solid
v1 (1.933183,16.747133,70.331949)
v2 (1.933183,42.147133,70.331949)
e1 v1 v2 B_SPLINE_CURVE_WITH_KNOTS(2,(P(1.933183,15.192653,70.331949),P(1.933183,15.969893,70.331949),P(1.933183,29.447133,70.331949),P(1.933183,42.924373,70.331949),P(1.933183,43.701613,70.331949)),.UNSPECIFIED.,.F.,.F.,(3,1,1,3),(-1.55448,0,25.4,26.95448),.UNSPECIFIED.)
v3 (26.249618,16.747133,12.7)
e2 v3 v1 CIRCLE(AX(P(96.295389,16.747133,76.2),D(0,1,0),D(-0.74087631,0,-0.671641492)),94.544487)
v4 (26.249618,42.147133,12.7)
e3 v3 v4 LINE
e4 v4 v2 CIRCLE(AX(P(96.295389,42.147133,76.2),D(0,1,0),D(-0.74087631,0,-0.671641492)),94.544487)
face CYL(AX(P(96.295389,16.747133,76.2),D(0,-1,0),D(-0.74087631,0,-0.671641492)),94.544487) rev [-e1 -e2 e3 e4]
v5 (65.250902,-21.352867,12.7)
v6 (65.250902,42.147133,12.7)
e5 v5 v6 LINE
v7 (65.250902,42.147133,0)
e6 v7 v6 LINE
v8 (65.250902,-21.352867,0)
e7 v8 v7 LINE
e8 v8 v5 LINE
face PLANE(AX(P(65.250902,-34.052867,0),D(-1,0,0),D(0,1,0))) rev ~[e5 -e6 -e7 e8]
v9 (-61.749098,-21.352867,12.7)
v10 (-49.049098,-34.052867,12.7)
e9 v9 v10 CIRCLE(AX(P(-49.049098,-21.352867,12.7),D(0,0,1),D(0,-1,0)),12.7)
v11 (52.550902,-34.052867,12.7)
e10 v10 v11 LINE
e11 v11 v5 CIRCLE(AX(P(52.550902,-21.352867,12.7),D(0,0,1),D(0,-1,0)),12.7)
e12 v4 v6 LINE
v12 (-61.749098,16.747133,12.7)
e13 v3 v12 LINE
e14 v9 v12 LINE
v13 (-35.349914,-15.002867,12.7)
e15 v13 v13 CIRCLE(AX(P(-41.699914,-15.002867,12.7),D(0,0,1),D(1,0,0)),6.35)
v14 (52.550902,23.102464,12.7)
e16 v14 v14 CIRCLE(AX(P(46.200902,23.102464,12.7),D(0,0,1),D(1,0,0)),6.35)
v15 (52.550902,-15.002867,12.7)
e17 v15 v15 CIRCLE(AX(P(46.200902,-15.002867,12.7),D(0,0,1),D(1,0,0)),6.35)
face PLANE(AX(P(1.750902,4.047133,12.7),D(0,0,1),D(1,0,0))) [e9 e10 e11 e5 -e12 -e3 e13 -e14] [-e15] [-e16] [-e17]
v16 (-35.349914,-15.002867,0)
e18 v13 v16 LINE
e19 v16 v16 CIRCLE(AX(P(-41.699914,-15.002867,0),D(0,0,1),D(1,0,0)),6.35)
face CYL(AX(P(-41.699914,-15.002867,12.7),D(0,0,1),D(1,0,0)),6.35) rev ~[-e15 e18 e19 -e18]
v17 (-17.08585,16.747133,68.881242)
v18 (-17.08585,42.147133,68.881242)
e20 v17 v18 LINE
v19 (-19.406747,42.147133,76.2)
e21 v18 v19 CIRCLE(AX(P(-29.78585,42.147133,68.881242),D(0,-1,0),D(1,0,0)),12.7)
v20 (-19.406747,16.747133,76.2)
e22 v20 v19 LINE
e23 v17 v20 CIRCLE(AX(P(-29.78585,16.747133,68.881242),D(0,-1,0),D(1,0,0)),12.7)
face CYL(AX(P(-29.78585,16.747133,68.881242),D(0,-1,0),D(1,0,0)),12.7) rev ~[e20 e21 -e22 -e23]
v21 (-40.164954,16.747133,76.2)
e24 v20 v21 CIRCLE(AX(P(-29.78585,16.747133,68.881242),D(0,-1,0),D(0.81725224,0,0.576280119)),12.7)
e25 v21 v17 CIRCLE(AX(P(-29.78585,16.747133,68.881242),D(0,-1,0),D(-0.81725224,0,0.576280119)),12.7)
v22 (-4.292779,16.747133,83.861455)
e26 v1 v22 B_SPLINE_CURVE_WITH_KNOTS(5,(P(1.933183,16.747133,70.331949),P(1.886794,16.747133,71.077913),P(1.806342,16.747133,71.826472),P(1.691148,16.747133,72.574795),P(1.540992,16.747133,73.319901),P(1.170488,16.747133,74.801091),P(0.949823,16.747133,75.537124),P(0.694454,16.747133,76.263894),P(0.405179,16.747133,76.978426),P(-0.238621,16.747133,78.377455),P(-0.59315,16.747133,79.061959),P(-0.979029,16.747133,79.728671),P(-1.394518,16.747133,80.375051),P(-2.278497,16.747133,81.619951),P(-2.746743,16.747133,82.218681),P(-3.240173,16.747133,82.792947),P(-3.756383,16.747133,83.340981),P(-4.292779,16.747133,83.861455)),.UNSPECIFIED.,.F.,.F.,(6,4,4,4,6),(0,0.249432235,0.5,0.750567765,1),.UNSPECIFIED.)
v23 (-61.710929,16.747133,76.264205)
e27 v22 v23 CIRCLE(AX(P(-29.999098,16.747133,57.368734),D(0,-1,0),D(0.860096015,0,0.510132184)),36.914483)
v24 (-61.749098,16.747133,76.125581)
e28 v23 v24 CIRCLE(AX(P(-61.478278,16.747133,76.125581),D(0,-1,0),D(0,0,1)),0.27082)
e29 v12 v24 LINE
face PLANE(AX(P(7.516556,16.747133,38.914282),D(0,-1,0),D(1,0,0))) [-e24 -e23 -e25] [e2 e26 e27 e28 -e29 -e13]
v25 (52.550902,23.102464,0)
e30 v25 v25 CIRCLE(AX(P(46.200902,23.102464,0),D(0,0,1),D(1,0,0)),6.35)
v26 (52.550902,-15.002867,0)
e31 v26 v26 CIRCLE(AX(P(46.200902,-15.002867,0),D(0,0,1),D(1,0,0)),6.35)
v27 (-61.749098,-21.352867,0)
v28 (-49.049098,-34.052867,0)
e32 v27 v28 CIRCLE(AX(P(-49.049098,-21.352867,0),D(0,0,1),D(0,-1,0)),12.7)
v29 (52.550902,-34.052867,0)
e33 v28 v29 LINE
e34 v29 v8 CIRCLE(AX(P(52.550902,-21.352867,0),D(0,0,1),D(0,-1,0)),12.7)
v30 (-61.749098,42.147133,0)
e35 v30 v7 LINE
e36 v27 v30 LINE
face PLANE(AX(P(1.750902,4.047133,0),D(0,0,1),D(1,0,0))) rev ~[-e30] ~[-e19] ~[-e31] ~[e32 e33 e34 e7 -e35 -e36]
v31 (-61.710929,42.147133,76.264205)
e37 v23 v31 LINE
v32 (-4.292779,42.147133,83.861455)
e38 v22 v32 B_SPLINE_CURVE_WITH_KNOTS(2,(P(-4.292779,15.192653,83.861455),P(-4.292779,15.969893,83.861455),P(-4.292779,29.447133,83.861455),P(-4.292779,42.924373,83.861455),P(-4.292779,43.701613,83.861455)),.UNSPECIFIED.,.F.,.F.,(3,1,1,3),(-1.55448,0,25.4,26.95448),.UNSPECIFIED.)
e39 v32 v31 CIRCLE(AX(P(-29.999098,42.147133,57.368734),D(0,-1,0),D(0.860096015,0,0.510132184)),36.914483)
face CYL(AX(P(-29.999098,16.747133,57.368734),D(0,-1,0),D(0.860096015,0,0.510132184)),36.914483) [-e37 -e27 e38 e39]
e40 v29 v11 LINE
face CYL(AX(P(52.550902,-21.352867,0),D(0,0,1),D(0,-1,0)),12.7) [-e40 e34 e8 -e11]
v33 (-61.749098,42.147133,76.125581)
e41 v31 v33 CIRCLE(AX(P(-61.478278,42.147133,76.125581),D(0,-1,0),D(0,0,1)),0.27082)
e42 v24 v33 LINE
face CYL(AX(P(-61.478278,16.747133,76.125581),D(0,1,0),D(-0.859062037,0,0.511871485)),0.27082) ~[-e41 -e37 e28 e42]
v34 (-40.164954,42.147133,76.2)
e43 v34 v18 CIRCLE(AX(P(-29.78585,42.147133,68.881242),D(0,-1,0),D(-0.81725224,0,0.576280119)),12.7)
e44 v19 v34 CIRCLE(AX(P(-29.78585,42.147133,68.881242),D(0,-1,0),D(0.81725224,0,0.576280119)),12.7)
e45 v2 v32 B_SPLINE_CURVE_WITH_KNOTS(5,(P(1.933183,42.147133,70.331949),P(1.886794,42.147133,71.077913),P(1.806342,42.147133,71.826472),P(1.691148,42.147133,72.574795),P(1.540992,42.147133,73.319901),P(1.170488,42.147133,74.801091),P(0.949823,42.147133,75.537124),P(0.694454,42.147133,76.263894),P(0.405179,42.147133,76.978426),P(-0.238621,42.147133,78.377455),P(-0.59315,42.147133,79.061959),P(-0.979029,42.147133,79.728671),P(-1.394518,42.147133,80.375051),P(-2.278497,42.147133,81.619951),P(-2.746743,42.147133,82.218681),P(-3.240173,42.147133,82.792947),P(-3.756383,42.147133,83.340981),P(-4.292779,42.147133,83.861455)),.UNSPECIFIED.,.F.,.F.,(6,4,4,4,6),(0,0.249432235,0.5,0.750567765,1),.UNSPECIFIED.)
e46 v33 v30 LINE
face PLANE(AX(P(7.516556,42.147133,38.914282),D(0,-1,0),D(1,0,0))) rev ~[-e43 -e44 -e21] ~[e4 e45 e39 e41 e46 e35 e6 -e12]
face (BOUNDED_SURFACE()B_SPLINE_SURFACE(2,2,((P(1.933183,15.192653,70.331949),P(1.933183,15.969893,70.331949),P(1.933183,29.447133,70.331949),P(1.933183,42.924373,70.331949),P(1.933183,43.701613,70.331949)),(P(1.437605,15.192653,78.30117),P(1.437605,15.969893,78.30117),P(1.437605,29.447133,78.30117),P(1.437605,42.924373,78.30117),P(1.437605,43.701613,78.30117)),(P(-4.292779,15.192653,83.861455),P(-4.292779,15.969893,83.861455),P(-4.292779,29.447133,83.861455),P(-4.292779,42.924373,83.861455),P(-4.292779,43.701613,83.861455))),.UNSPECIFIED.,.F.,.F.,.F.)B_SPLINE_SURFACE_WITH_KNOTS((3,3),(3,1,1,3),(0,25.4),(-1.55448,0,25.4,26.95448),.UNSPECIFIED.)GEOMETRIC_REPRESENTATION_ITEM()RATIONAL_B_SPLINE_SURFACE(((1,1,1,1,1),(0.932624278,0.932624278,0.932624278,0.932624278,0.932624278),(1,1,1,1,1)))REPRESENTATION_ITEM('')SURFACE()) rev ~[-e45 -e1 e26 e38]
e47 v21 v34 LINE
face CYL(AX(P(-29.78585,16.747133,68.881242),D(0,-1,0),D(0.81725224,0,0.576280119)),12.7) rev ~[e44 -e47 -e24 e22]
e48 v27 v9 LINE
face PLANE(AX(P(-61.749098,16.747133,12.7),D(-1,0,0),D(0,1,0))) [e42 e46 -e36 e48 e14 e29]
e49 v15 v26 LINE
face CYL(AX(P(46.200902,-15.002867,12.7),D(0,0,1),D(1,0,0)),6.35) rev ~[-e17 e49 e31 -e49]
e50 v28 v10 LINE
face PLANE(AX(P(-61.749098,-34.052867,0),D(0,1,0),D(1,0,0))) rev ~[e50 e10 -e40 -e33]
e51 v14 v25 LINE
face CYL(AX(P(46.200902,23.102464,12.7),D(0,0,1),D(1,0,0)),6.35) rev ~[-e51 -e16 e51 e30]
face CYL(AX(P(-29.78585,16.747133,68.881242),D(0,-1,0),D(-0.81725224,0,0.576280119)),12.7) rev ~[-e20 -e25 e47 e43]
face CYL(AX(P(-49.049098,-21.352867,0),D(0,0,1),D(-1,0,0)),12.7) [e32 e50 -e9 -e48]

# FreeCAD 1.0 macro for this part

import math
import FreeCAD as App
import Part
import Sketcher

V = App.Vector
Q = App.Units.Quantity


def edges_at(feature, points):
    """Names of the edges that pass closest to the given points."""
    edges = feature.Shape.Edges
    near = lambda p: min(range(len(edges)), key=lambda i: edges[i].distToShape(Part.Vertex(*p))[0])
    return sorted({f"Edge{near(p) + 1}" for p in points})


def add_polygon(sketch, points):
    """Adds a closed chain of lines whose ends are joined by coincident constraints."""
    first, n = sketch.GeometryCount, len(points)
    for a, b in zip(points, points[1:] + points[:1]):
        sketch.addGeometry(Part.LineSegment(App.Vector(*a, 0), App.Vector(*b, 0)), False)
    for i in range(n):
        sketch.addConstraint(Sketcher.Constraint("Coincident", first + i, 2, first + (i + 1) % n, 1))

doc = App.newDocument("Part")
body = doc.addObject("PartDesign::Body", "Body")

# Sketch on XY plane
sketch1 = body.newObject("Sketcher::SketchObject", "Sketch")
sketch1.AttachmentSupport = (doc.getObject("XY_Plane"), [""])
sketch1.MapMode = "FlatFace"
add_polygon(sketch1, [(-62, 42), (-62, -34), (65, -34), (65, 42)])  # lines 0-3
sketch1.addConstraint([
    Sketcher.Constraint("Vertical", 0),
    Sketcher.Constraint("Horizontal", 1),
    Sketcher.Constraint("Vertical", 2),
    Sketcher.Constraint("Horizontal", 3),
    Sketcher.Constraint("DistanceX", 1, 1, 1, 2, Q("5 in")),
    Sketcher.Constraint("DistanceY", 0, 2, 0, 1, Q("3 in")),
    Sketcher.Constraint("DistanceX", 0, 2, -1, 1, 61.749098),
    Sketcher.Constraint("DistanceY", 0, 2, -1, 1, 34.052867),
])
pad1 = body.newObject("PartDesign::Pad", "Pad")
pad1.Profile = sketch1
pad1.Length = Q("0.5 in")
doc.recompute()

fillet = body.newObject("PartDesign::Fillet", "Fillet")
fillet.Base = (pad1, edges_at(pad1, [(-61.749, -34.053, 6.35)]))
fillet.Radius = Q("0.5 in")
doc.recompute()

fillet2 = body.newObject("PartDesign::Fillet", "Fillet001")
fillet2.Base = (fillet, edges_at(fillet, [(65.251, -34.053, 6.35)]))
fillet2.Radius = Q("0.5 in")

# Sketch on XY plane
sketch2 = body.newObject("Sketcher::SketchObject", "Sketch001")
sketch2.AttachmentSupport = (doc.getObject("XY_Plane"), [""])
sketch2.MapMode = "FlatFace"
sketch2.AttachmentOffset = App.Placement(V(0, 0, 0.5 * 25.4), App.Rotation())
add_polygon(sketch2, [(-62, 42), (-62, 17), (2, 17), (2, 42)])  # lines 0-3
sketch2.addConstraint([
    Sketcher.Constraint("Vertical", 0),
    Sketcher.Constraint("Horizontal", 1),
    Sketcher.Constraint("Vertical", 2),
    Sketcher.Constraint("Horizontal", 3),
    Sketcher.Constraint("DistanceY", 0, 2, 0, 1, Q("1 in")),
    Sketcher.Constraint("DistanceX", 1, 1, 1, 2, Q("2.5 in")),
    Sketcher.Constraint("DistanceX", 0, 2, -1, 1, 61.749098),
    Sketcher.Constraint("DistanceY", -1, 1, 0, 2, 16.747133),
])
pad2 = body.newObject("PartDesign::Pad", "Pad001")
pad2.Profile = sketch2
pad2.Length = Q("2.5 in")

# Sketch on XZ plane
sketch3 = body.newObject("Sketcher::SketchObject", "Sketch002")
sketch3.AttachmentSupport = (doc.getObject("XZ_Plane"), [""])
sketch3.MapMode = "FlatFace"
sketch3.AttachmentOffset = App.Placement(V(0, 0, -16.747133), App.Rotation())
sketch3.addGeometry([
    Part.LineSegment(V(-62, 76, 0), V(2, 76, 0)),
    Part.ArcOfCircle(Part.Circle(V(-30, 57, 0), V(0, 0, 1), 37), math.radians(31), math.radians(149)),
], False)
sketch3.addConstraint([
    Sketcher.Constraint("Coincident", 0, 1, 1, 2),
    Sketcher.Constraint("Coincident", 1, 1, 0, 2),
    Sketcher.Constraint("Horizontal", 0),
    Sketcher.Constraint("DistanceX", 0, 1, 0, 2, Q("2.5 in")),
    Sketcher.Constraint("DistanceY", -1, 1, 0, 1, Q("3 in")),
    Sketcher.Constraint("Radius", 1, 36.914483),
    Sketcher.Constraint("DistanceX", 1, 3, -1, 1, 29.999098),
])
pad3 = body.newObject("PartDesign::Pad", "Pad002")
pad3.Profile = sketch3
pad3.Length = Q("1 in")
pad3.Reversed = True

# Sketch on XZ plane
sketch4 = body.newObject("Sketcher::SketchObject", "Sketch003")
sketch4.AttachmentSupport = (doc.getObject("XZ_Plane"), [""])
sketch4.MapMode = "FlatFace"
sketch4.AttachmentOffset = App.Placement(V(0, 0, -16.747133), App.Rotation())
sketch4.addGeometry([
    Part.ArcOfCircle(Part.Circle(V(96, 76, 0), V(0, 0, 1), 95), math.radians(180), math.radians(222)),
    Part.LineSegment(V(2, 76, 0), V(2, 13, 0)),
    Part.LineSegment(V(2, 13, 0), V(26, 13, 0)),
], False)
sketch4.addConstraint([
    Sketcher.Constraint("Tangent", 0, 1, 1, 1),
    Sketcher.Constraint("Coincident", 1, 2, 2, 1),
    Sketcher.Constraint("Coincident", 2, 2, 0, 2),
    Sketcher.Constraint("Vertical", 1),
    Sketcher.Constraint("Horizontal", 2),
    Sketcher.Constraint("DistanceY", 1, 2, 1, 1, Q("2.5 in")),
    Sketcher.Constraint("DistanceY", -1, 1, 0, 3, Q("3 in")),
    Sketcher.Constraint("Radius", 0, 94.544487),
    Sketcher.Constraint("DistanceX", -1, 1, 0, 1, 1.750902),
])
pad4 = body.newObject("PartDesign::Pad", "Pad003")
pad4.Profile = sketch4
pad4.Length = Q("1 in")
pad4.Reversed = True
doc.recompute()

fillet3 = body.newObject("PartDesign::Fillet", "Fillet002")
fillet3.Base = (pad4, edges_at(pad4, [(1.751, 29.447, 76.2)]))
fillet3.Radius = 20.636463

# Sketch on XZ plane
sketch5 = body.newObject("Sketcher::SketchObject", "Sketch004")
sketch5.AttachmentSupport = (doc.getObject("XZ_Plane"), [""])
sketch5.MapMode = "FlatFace"
sketch5.AttachmentOffset = App.Placement(V(0, 0, -16.747133), App.Rotation())
sketch5.addGeometry([
    Part.ArcOfCircle(Part.Circle(V(-30, 69, 0), V(0, 0, 1), 13), math.radians(145), math.radians(360)),
    Part.ArcOfCircle(Part.Circle(V(-30, 69, 0), V(0, 0, 1), 13), math.radians(0), math.radians(35)),
    Part.LineSegment(V(-19, 76, 0), V(-40, 76, 0)),
], False)
sketch5.addConstraint([
    Sketcher.Constraint("Tangent", 0, 2, 1, 1),
    Sketcher.Constraint("Coincident", 1, 2, 2, 1),
    Sketcher.Constraint("Coincident", 2, 2, 0, 1),
    Sketcher.Constraint("Horizontal", 2),
    Sketcher.Constraint("Equal", 0, 1),
    Sketcher.Constraint("Horizontal", 1, 3, 0, 2),
    Sketcher.Constraint("Radius", 0, Q("0.5 in")),
    Sketcher.Constraint("DistanceY", -1, 1, 1, 2, Q("3 in")),
    Sketcher.Constraint("DistanceX", 2, 2, 2, 1, 20.758207),
    Sketcher.Constraint("DistanceX", 0, 3, -1, 1, 29.78585),
])
pocket1 = body.newObject("PartDesign::Pocket", "Pocket")
pocket1.Profile = sketch5
pocket1.Type = "ThroughAll"

# Sketch on XZ plane
sketch6 = body.newObject("Sketcher::SketchObject", "Sketch005")
sketch6.AttachmentSupport = (doc.getObject("XZ_Plane"), [""])
sketch6.MapMode = "FlatFace"
sketch6.AttachmentOffset = App.Placement(V(0, 0, -16.747133), App.Rotation())
sketch6.addGeometry([
    Part.LineSegment(V(-40, 76, 0), V(-19, 76, 0)),
    Part.ArcOfCircle(Part.Circle(V(-30, 69, 0), V(0, 0, 1), 13), math.radians(35), math.radians(145)),
], False)
sketch6.addConstraint([
    Sketcher.Constraint("Coincident", 0, 1, 1, 2),
    Sketcher.Constraint("Coincident", 1, 1, 0, 2),
    Sketcher.Constraint("Horizontal", 0),
    Sketcher.Constraint("Radius", 1, Q("0.5 in")),
    Sketcher.Constraint("DistanceY", -1, 1, 0, 1, Q("3 in")),
    Sketcher.Constraint("DistanceX", 0, 1, 0, 2, 20.758207),
    Sketcher.Constraint("DistanceX", 1, 3, -1, 1, 29.78585),
])
pocket2 = body.newObject("PartDesign::Pocket", "Pocket001")
pocket2.Profile = sketch6
pocket2.Type = "ThroughAll"
doc.recompute()

fillet4 = body.newObject("PartDesign::Fillet", "Fillet003")
fillet4.Base = (pocket2, edges_at(pocket2, [(-61.749, 29.447, 76.2)]))
fillet4.Radius = 0.27082

# Sketch on XY plane
sketch7 = body.newObject("Sketcher::SketchObject", "Sketch006")
sketch7.AttachmentSupport = (doc.getObject("XY_Plane"), [""])
sketch7.MapMode = "FlatFace"
sketch7.AttachmentOffset = App.Placement(V(0, 0, 0.5 * 25.4), App.Rotation())
sketch7.addGeometry(Part.Circle(V(-42, -15, 0), V(0, 0, 1), 6), False)
sketch7.addConstraint([
    Sketcher.Constraint("Diameter", 0, Q("0.5 in")),
    Sketcher.Constraint("DistanceX", 0, 3, -1, 1, 41.699914),
    Sketcher.Constraint("DistanceY", 0, 3, -1, 1, 15.002867),
])
pocket3 = body.newObject("PartDesign::Pocket", "Pocket002")
pocket3.Profile = sketch7
pocket3.Type = "ThroughAll"

# Sketch on XY plane
sketch8 = body.newObject("Sketcher::SketchObject", "Sketch007")
sketch8.AttachmentSupport = (doc.getObject("XY_Plane"), [""])
sketch8.MapMode = "FlatFace"
sketch8.AttachmentOffset = App.Placement(V(0, 0, 0.5 * 25.4), App.Rotation())
sketch8.addGeometry(Part.Circle(V(46, -15, 0), V(0, 0, 1), 6), False)
sketch8.addConstraint([
    Sketcher.Constraint("Diameter", 0, Q("0.5 in")),
    Sketcher.Constraint("DistanceX", -1, 1, 0, 3, 46.200902),
    Sketcher.Constraint("DistanceY", 0, 3, -1, 1, 15.002867),
])
pocket4 = body.newObject("PartDesign::Pocket", "Pocket003")
pocket4.Profile = sketch8
pocket4.Type = "ThroughAll"

# Sketch on XY plane
sketch9 = body.newObject("Sketcher::SketchObject", "Sketch008")
sketch9.AttachmentSupport = (doc.getObject("XY_Plane"), [""])
sketch9.MapMode = "FlatFace"
sketch9.AttachmentOffset = App.Placement(V(0, 0, 0.5 * 25.4), App.Rotation())
sketch9.addGeometry(Part.Circle(V(46, 23, 0), V(0, 0, 1), 6), False)
sketch9.addConstraint([
    Sketcher.Constraint("Diameter", 0, Q("0.5 in")),
    Sketcher.Constraint("DistanceX", -1, 1, 0, 3, 46.200902),
    Sketcher.Constraint("DistanceY", -1, 1, 0, 3, 23.102464),
])
pocket5 = body.newObject("PartDesign::Pocket", "Pocket004")
pocket5.Profile = sketch9
pocket5.Type = "ThroughAll"

doc.recompute()
